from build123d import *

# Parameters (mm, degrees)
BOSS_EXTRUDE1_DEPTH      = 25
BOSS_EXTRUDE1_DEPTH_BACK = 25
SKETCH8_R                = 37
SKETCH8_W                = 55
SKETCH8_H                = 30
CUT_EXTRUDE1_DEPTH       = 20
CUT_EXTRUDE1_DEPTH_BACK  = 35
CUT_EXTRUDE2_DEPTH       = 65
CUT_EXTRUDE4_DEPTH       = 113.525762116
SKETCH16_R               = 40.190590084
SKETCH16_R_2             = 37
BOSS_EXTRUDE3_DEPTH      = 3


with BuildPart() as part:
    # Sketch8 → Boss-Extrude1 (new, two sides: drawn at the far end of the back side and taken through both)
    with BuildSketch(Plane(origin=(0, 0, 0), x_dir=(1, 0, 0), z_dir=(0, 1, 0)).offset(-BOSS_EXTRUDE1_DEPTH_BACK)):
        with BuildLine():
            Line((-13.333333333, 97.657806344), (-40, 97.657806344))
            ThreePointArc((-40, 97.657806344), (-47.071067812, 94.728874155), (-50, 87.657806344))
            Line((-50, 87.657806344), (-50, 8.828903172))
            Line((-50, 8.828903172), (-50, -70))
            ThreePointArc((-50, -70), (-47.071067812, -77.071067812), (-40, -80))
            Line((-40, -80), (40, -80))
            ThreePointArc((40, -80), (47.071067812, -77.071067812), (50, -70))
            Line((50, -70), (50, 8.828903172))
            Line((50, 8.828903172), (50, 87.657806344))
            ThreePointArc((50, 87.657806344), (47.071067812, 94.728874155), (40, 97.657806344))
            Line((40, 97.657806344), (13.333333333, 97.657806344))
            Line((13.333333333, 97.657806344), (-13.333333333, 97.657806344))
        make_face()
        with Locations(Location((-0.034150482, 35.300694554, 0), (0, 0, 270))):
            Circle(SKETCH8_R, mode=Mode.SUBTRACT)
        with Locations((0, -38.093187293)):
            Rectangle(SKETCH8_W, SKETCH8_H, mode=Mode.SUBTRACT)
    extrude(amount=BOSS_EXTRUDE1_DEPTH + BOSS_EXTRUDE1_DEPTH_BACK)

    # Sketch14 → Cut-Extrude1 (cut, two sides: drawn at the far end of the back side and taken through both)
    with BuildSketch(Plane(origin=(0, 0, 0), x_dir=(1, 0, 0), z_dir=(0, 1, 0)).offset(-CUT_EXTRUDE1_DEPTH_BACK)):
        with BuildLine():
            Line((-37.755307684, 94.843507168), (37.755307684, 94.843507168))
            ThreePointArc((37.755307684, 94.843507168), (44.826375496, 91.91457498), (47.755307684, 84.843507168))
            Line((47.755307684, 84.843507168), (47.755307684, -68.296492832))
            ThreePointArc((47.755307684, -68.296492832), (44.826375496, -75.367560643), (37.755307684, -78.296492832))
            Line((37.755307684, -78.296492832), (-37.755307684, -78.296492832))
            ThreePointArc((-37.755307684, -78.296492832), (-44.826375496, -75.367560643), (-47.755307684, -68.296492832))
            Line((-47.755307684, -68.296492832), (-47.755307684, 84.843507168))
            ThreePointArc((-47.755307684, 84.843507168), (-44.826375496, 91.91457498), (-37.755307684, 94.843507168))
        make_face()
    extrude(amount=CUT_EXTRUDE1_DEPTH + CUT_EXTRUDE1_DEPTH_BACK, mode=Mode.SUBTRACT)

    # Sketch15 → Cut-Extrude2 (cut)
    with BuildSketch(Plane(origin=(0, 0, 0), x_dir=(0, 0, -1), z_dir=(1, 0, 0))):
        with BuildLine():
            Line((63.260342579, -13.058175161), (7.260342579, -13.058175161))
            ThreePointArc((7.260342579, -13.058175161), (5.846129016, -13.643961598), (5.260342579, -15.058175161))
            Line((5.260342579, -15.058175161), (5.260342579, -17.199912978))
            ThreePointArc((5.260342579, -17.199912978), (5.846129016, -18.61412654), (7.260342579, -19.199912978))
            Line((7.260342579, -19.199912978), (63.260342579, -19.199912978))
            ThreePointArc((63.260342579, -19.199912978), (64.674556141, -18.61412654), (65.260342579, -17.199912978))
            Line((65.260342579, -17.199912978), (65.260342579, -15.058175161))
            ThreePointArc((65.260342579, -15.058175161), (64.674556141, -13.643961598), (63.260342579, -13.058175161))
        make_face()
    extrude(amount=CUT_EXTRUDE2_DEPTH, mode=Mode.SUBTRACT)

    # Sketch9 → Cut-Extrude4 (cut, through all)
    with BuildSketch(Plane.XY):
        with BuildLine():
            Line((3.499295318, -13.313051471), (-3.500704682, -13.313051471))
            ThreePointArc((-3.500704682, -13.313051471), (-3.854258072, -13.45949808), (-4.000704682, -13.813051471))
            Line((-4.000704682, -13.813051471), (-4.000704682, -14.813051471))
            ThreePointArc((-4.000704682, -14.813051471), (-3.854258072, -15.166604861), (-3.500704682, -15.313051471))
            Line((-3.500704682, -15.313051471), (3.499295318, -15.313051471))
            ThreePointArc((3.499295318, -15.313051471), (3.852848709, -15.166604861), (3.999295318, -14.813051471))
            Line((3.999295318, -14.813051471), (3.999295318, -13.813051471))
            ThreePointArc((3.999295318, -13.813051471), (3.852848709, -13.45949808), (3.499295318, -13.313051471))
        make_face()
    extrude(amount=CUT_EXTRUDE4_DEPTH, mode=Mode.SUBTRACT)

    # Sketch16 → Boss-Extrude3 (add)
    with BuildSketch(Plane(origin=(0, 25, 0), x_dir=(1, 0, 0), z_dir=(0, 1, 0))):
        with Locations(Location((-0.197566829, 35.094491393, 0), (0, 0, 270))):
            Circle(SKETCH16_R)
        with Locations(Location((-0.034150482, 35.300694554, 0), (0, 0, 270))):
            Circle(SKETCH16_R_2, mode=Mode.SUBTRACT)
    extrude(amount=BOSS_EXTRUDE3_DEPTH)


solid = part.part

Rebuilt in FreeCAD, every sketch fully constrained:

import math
import FreeCAD as App
import Part
import Sketcher
from FreeCAD import Vector
Q = App.Units.Quantity

doc = App.newDocument("Part")
params = doc.addObject("Spreadsheet::Sheet", "Params")
for row, (alias, value) in enumerate([
    ("sketch1_diameter", "74 mm"),
    ("sketch1_radius", "10 mm"),
    ("sketch1_width", "80 mm"),
    ("sketch1_width2", "55 mm"),
    ("sketch1_height", "30 mm"),
    ("pad1_length", "25 mm"),
    ("pad1_length2", "25 mm"),
    ("sketch2_radius", "10 mm"),
    ("sketch2_height", "153.14 mm"),
    ("pocket1_length", "20 mm"),
    ("pocket1_length2", "35 mm"),
    ("sketch3_radius", "2 mm"),
    ("sketch3_height", "56 mm"),
    ("pocket2_length", "65 mm"),
    ("sketch4_radius", "0.5 mm"),
    ("sketch4_width", "7 mm"),
    ("sketch4_height", "1 mm"),
    ("sketch5_diameter", "74 mm"),
    ("pad2_length", "3 mm"),
], start=1):
    params.set(f"A{row}", alias)
    params.set(f"B{row}", "=" + value)
    params.setAlias(f"B{row}", alias)

body = doc.addObject("PartDesign::Body", "Body")

sketch1 = body.newObject("Sketcher::SketchObject", "Sketch")
sketch1.AttachmentSupport = (doc.getObject("XZ_Plane"), [""])
sketch1.MapMode = "FlatFace"
sketch1.addGeometry(Part.ArcOfCircle(Part.Circle(Vector(-40, -88, 0), Vector(0, 0, 1), 10), math.radians(-180), math.radians(-90)), False)
sketch1.addGeometry(Part.LineSegment(Vector(-50, -88, 0), Vector(-50, 70, 0)), False)
sketch1.addGeometry(Part.ArcOfCircle(Part.Circle(Vector(-40, 70, 0), Vector(0, 0, 1), 10), math.radians(90), math.radians(180)), False)
sketch1.addGeometry(Part.LineSegment(Vector(-40, 80, 0), Vector(40, 80, 0)), False)
sketch1.addGeometry(Part.ArcOfCircle(Part.Circle(Vector(40, 70, 0), Vector(0, 0, 1), 10), math.radians(0), math.radians(90)), False)
sketch1.addGeometry(Part.LineSegment(Vector(50, 70, 0), Vector(50, -88, 0)), False)
sketch1.addGeometry(Part.ArcOfCircle(Part.Circle(Vector(40, -88, 0), Vector(0, 0, 1), 10), math.radians(-90), math.radians(0)), False)
sketch1.addGeometry(Part.LineSegment(Vector(40, -98, 0), Vector(-40, -98, 0)), False)
sketch1.addGeometry(Part.LineSegment(Vector(28, 53, 0), Vector(-28, 53, 0)), False)
sketch1.addGeometry(Part.LineSegment(Vector(-28, 53, 0), Vector(-28, 23, 0)), False)
sketch1.addGeometry(Part.LineSegment(Vector(-28, 23, 0), Vector(28, 23, 0)), False)
sketch1.addGeometry(Part.LineSegment(Vector(28, 23, 0), Vector(28, 53, 0)), False)
sketch1.addGeometry(Part.Circle(Vector(0, -35, 0), Vector(0, 0, 1), 37), False)
sketch1.addConstraint(Sketcher.Constraint("Tangent", 0, 1, 1, 1))
sketch1.addConstraint(Sketcher.Constraint("Tangent", 1, 2, 2, 2))
sketch1.addConstraint(Sketcher.Constraint("Tangent", 2, 1, 3, 1))
sketch1.addConstraint(Sketcher.Constraint("Tangent", 3, 2, 4, 2))
sketch1.addConstraint(Sketcher.Constraint("Tangent", 4, 1, 5, 1))
sketch1.addConstraint(Sketcher.Constraint("Tangent", 5, 2, 6, 2))
sketch1.addConstraint(Sketcher.Constraint("Tangent", 6, 1, 7, 1))
sketch1.addConstraint(Sketcher.Constraint("Tangent", 7, 2, 0, 2))
sketch1.addConstraint(Sketcher.Constraint("Coincident", 8, 2, 9, 1))
sketch1.addConstraint(Sketcher.Constraint("Coincident", 9, 2, 10, 1))
sketch1.addConstraint(Sketcher.Constraint("Coincident", 10, 2, 11, 1))
sketch1.addConstraint(Sketcher.Constraint("Coincident", 11, 2, 8, 1))
sketch1.addConstraint(Sketcher.Constraint("Vertical", 1))
sketch1.addConstraint(Sketcher.Constraint("Horizontal", 3))
sketch1.addConstraint(Sketcher.Constraint("Vertical", 5))
sketch1.addConstraint(Sketcher.Constraint("Horizontal", 7))
sketch1.addConstraint(Sketcher.Constraint("Horizontal", 8))
sketch1.addConstraint(Sketcher.Constraint("Vertical", 9))
sketch1.addConstraint(Sketcher.Constraint("Horizontal", 10))
sketch1.addConstraint(Sketcher.Constraint("Vertical", 11))
sketch1.addConstraint(Sketcher.Constraint("Equal", 0, 2))
sketch1.addConstraint(Sketcher.Constraint("Equal", 2, 4))
sketch1.addConstraint(Sketcher.Constraint("Equal", 4, 6))
sketch1.addConstraint(Sketcher.Constraint("Diameter", 12, Q("74 mm")))
sketch1.addConstraint(Sketcher.Constraint("Radius", 0, Q("10 mm")))
sketch1.addConstraint(Sketcher.Constraint("DistanceX", 3, 1, 3, 2, Q("80 mm")))
sketch1.addConstraint(Sketcher.Constraint("DistanceX", 8, 2, 8, 1, Q("55 mm")))
sketch1.addConstraint(Sketcher.Constraint("DistanceY", 9, 2, 9, 1, Q("30 mm")))
sketch1.addConstraint(Sketcher.Constraint("DistanceX", 0, 3, -1, 1, Q("40 mm")))
sketch1.addConstraint(Sketcher.Constraint("DistanceY", -1, 1, 2, 3, Q("70 mm")))
sketch1.addConstraint(Sketcher.Constraint("DistanceX", 8, 2, -1, 1, Q("27.5 mm")))
sketch1.addConstraint(Sketcher.Constraint("DistanceY", 1, 1, 1, 2, Q("157.657806 mm")))
sketch1.addConstraint(Sketcher.Constraint("DistanceX", 12, 3, -1, 1, Q("0.03415 mm")))
sketch1.addConstraint(Sketcher.Constraint("DistanceY", 0, 3, 12, 3, Q("52.357112 mm")))
sketch1.addConstraint(Sketcher.Constraint("DistanceY", 12, 3, 9, 2, Q("58.393882 mm")))
sketch1.setExpression("Constraints[23]", "Params.sketch1_diameter")
sketch1.setExpression("Constraints[24]", "Params.sketch1_radius")
sketch1.setExpression("Constraints[25]", "Params.sketch1_width")
sketch1.setExpression("Constraints[26]", "Params.sketch1_width2")
sketch1.setExpression("Constraints[27]", "Params.sketch1_height")
pad1 = body.newObject("PartDesign::Pad", "Pad")
pad1.Profile = sketch1
pad1.Type = "TwoLengths"
pad1.setExpression("Length", "Params.pad1_length")
pad1.setExpression("Length2", "Params.pad1_length2")
pad1.Reversed = True

sketch2 = body.newObject("Sketcher::SketchObject", "Sketch001")
sketch2.AttachmentSupport = (doc.getObject("XZ_Plane"), [""])
sketch2.MapMode = "FlatFace"
sketch2.addGeometry(Part.LineSegment(Vector(38, -95, 0), Vector(-38, -95, 0)), False)
sketch2.addGeometry(Part.ArcOfCircle(Part.Circle(Vector(-38, -85, 0), Vector(0, 0, 1), 10), math.radians(180), math.radians(270)), False)
sketch2.addGeometry(Part.LineSegment(Vector(-48, -85, 0), Vector(-48, 68, 0)), False)
sketch2.addGeometry(Part.ArcOfCircle(Part.Circle(Vector(-38, 68, 0), Vector(0, 0, 1), 10), math.radians(90), math.radians(180)), False)
sketch2.addGeometry(Part.LineSegment(Vector(-38, 78, 0), Vector(38, 78, 0)), False)
sketch2.addGeometry(Part.ArcOfCircle(Part.Circle(Vector(38, 68, 0), Vector(0, 0, 1), 10), math.radians(0), math.radians(90)), False)
sketch2.addGeometry(Part.LineSegment(Vector(48, 68, 0), Vector(48, -85, 0)), False)
sketch2.addGeometry(Part.ArcOfCircle(Part.Circle(Vector(38, -85, 0), Vector(0, 0, 1), 10), math.radians(-90), math.radians(0)), False)
sketch2.addConstraint(Sketcher.Constraint("Tangent", 0, 2, 1, 2))
sketch2.addConstraint(Sketcher.Constraint("Tangent", 1, 1, 2, 1))
sketch2.addConstraint(Sketcher.Constraint("Tangent", 2, 2, 3, 2))
sketch2.addConstraint(Sketcher.Constraint("Tangent", 3, 1, 4, 1))
sketch2.addConstraint(Sketcher.Constraint("Tangent", 4, 2, 5, 2))
sketch2.addConstraint(Sketcher.Constraint("Tangent", 5, 1, 6, 1))
sketch2.addConstraint(Sketcher.Constraint("Tangent", 6, 2, 7, 2))
sketch2.addConstraint(Sketcher.Constraint("Tangent", 7, 1, 0, 1))
sketch2.addConstraint(Sketcher.Constraint("Horizontal", 0))
sketch2.addConstraint(Sketcher.Constraint("Vertical", 2))
sketch2.addConstraint(Sketcher.Constraint("Horizontal", 4))
sketch2.addConstraint(Sketcher.Constraint("Vertical", 6))
sketch2.addConstraint(Sketcher.Constraint("Equal", 1, 3))
sketch2.addConstraint(Sketcher.Constraint("Equal", 3, 5))
sketch2.addConstraint(Sketcher.Constraint("Equal", 5, 7))
sketch2.addConstraint(Sketcher.Constraint("Radius", 1, Q("10 mm")))
sketch2.addConstraint(Sketcher.Constraint("DistanceY", 2, 1, 2, 2, Q("153.14 mm")))
sketch2.addConstraint(Sketcher.Constraint("DistanceX", 0, 2, 0, 1, Q("75.510615 mm")))
sketch2.addConstraint(Sketcher.Constraint("DistanceX", 1, 3, -1, 1, Q("37.755308 mm")))
sketch2.addConstraint(Sketcher.Constraint("DistanceY", 1, 3, -1, 1, Q("84.843507 mm")))
sketch2.setExpression("Constraints[15]", "Params.sketch2_radius")
sketch2.setExpression("Constraints[16]", "Params.sketch2_height")
pocket1 = body.newObject("PartDesign::Pocket", "Pocket")
pocket1.Profile = sketch2
pocket1.Type = "TwoLengths"
pocket1.setExpression("Length", "Params.pocket1_length")
pocket1.setExpression("Length2", "Params.pocket1_length2")

sketch3 = body.newObject("Sketcher::SketchObject", "Sketch002")
sketch3.AttachmentSupport = (doc.getObject("YZ_Plane"), [""])
sketch3.MapMode = "FlatFace"
sketch3.addGeometry(Part.LineSegment(Vector(-13.1, -63.3, 0), Vector(-13.1, -7.3, 0)), False)
sketch3.addGeometry(Part.ArcOfCircle(Part.Circle(Vector(-15.1, -7.3, 0), Vector(0, 0, 1), 2), math.radians(0), math.radians(90)), False)
sketch3.addGeometry(Part.LineSegment(Vector(-15.1, -5.3, 0), Vector(-17.2, -5.3, 0)), False)
sketch3.addGeometry(Part.ArcOfCircle(Part.Circle(Vector(-17.2, -7.3, 0), Vector(0, 0, 1), 2), math.radians(90), math.radians(180)), False)
sketch3.addGeometry(Part.LineSegment(Vector(-19.2, -7.3, 0), Vector(-19.2, -63.3, 0)), False)
sketch3.addGeometry(Part.ArcOfCircle(Part.Circle(Vector(-17.2, -63.3, 0), Vector(0, 0, 1), 2), math.radians(-180), math.radians(-90)), False)
sketch3.addGeometry(Part.LineSegment(Vector(-17.2, -65.3, 0), Vector(-15.1, -65.3, 0)), False)
sketch3.addGeometry(Part.ArcOfCircle(Part.Circle(Vector(-15.1, -63.3, 0), Vector(0, 0, 1), 2), math.radians(-90), math.radians(0)), False)
sketch3.addConstraint(Sketcher.Constraint("Tangent", 0, 2, 1, 1))
sketch3.addConstraint(Sketcher.Constraint("Tangent", 1, 2, 2, 1))
sketch3.addConstraint(Sketcher.Constraint("Tangent", 2, 2, 3, 1))
sketch3.addConstraint(Sketcher.Constraint("Tangent", 3, 2, 4, 1))
sketch3.addConstraint(Sketcher.Constraint("Tangent", 4, 2, 5, 1))
sketch3.addConstraint(Sketcher.Constraint("Tangent", 5, 2, 6, 1))
sketch3.addConstraint(Sketcher.Constraint("Tangent", 6, 2, 7, 1))
sketch3.addConstraint(Sketcher.Constraint("Tangent", 7, 2, 0, 1))
sketch3.addConstraint(Sketcher.Constraint("Vertical", 0))
sketch3.addConstraint(Sketcher.Constraint("Horizontal", 2))
sketch3.addConstraint(Sketcher.Constraint("Vertical", 4))
sketch3.addConstraint(Sketcher.Constraint("Horizontal", 6))
sketch3.addConstraint(Sketcher.Constraint("Equal", 1, 3))
sketch3.addConstraint(Sketcher.Constraint("Equal", 3, 5))
sketch3.addConstraint(Sketcher.Constraint("Equal", 5, 7))
sketch3.addConstraint(Sketcher.Constraint("Radius", 1, Q("2 mm")))
sketch3.addConstraint(Sketcher.Constraint("DistanceY", 0, 1, 0, 2, Q("56 mm")))
sketch3.addConstraint(Sketcher.Constraint("DistanceX", 2, 2, 2, 1, Q("2.141738 mm")))
sketch3.addConstraint(Sketcher.Constraint("DistanceX", 1, 3, -1, 1, Q("15.058175 mm")))
sketch3.addConstraint(Sketcher.Constraint("DistanceY", 1, 3, -1, 1, Q("7.260343 mm")))
sketch3.setExpression("Constraints[15]", "Params.sketch3_radius")
sketch3.setExpression("Constraints[16]", "Params.sketch3_height")
pocket2 = body.newObject("PartDesign::Pocket", "Pocket001")
pocket2.Profile = sketch3
pocket2.setExpression("Length", "Params.pocket2_length")
pocket2.Reversed = True

sketch4 = body.newObject("Sketcher::SketchObject", "Sketch003")
sketch4.AttachmentSupport = (doc.getObject("XY_Plane"), [""])
sketch4.MapMode = "FlatFace"
sketch4.addGeometry(Part.LineSegment(Vector(3.5, -13.31, 0), Vector(-3.5, -13.31, 0)), False)
sketch4.addGeometry(Part.ArcOfCircle(Part.Circle(Vector(-3.5, -13.81, 0), Vector(0, 0, 1), 0.5), math.radians(90), math.radians(180)), False)
sketch4.addGeometry(Part.LineSegment(Vector(-4, -13.81, 0), Vector(-4, -14.81, 0)), False)
sketch4.addGeometry(Part.ArcOfCircle(Part.Circle(Vector(-3.5, -14.81, 0), Vector(0, 0, 1), 0.5), math.radians(-180), math.radians(-90)), False)
sketch4.addGeometry(Part.LineSegment(Vector(-3.5, -15.31, 0), Vector(3.5, -15.31, 0)), False)
sketch4.addGeometry(Part.ArcOfCircle(Part.Circle(Vector(3.5, -14.81, 0), Vector(0, 0, 1), 0.5), math.radians(-90), math.radians(0)), False)
sketch4.addGeometry(Part.LineSegment(Vector(4, -14.81, 0), Vector(4, -13.81, 0)), False)
sketch4.addGeometry(Part.ArcOfCircle(Part.Circle(Vector(3.5, -13.81, 0), Vector(0, 0, 1), 0.5), math.radians(0), math.radians(90)), False)
sketch4.addConstraint(Sketcher.Constraint("Tangent", 0, 2, 1, 1))
sketch4.addConstraint(Sketcher.Constraint("Tangent", 1, 2, 2, 1))
sketch4.addConstraint(Sketcher.Constraint("Tangent", 2, 2, 3, 1))
sketch4.addConstraint(Sketcher.Constraint("Tangent", 3, 2, 4, 1))
sketch4.addConstraint(Sketcher.Constraint("Tangent", 4, 2, 5, 1))
sketch4.addConstraint(Sketcher.Constraint("Tangent", 5, 2, 6, 1))
sketch4.addConstraint(Sketcher.Constraint("Tangent", 6, 2, 7, 1))
sketch4.addConstraint(Sketcher.Constraint("Tangent", 7, 2, 0, 1))
sketch4.addConstraint(Sketcher.Constraint("Horizontal", 0))
sketch4.addConstraint(Sketcher.Constraint("Vertical", 2))
sketch4.addConstraint(Sketcher.Constraint("Horizontal", 4))
sketch4.addConstraint(Sketcher.Constraint("Vertical", 6))
sketch4.addConstraint(Sketcher.Constraint("Equal", 1, 3))
sketch4.addConstraint(Sketcher.Constraint("Equal", 3, 5))
sketch4.addConstraint(Sketcher.Constraint("Equal", 5, 7))
sketch4.addConstraint(Sketcher.Constraint("Radius", 1, Q("0.5 mm")))
sketch4.addConstraint(Sketcher.Constraint("DistanceX", 0, 2, 0, 1, Q("7 mm")))
sketch4.addConstraint(Sketcher.Constraint("DistanceY", 2, 2, 2, 1, Q("1 mm")))
sketch4.addConstraint(Sketcher.Constraint("DistanceY", 1, 3, -1, 1, Q("13.813051 mm")))
sketch4.addConstraint(Sketcher.Constraint("DistanceX", 1, 3, -1, 1, Q("3.500705 mm")))
sketch4.setExpression("Constraints[15]", "Params.sketch4_radius")
sketch4.setExpression("Constraints[16]", "Params.sketch4_width")
sketch4.setExpression("Constraints[17]", "Params.sketch4_height")
pocket3 = body.newObject("PartDesign::Pocket", "Pocket002")
pocket3.Profile = sketch4
pocket3.Type = "ThroughAll"
pocket3.Reversed = True

sketch5 = body.newObject("Sketcher::SketchObject", "Sketch004")
sketch5.AttachmentSupport = (doc.getObject("XZ_Plane"), [""])
sketch5.MapMode = "FlatFace"
sketch5.AttachmentOffset = App.Placement(Vector(0, 0, -25), App.Rotation())
sketch5.addGeometry(Part.Circle(Vector(0, -35, 0), Vector(0, 0, 1), 40), False)
sketch5.addGeometry(Part.Circle(Vector(0, -35, 0), Vector(0, 0, 1), 37), False)
sketch5.addConstraint(Sketcher.Constraint("Diameter", 1, Q("74 mm")))
sketch5.addConstraint(Sketcher.Constraint("Diameter", 0, Q("80.38118 mm")))
sketch5.addConstraint(Sketcher.Constraint("DistanceY", 0, 3, -1, 1, Q("35.094491 mm")))
sketch5.addConstraint(Sketcher.Constraint("DistanceX", 1, 3, -1, 1, Q("0.03415 mm")))
sketch5.addConstraint(Sketcher.Constraint("DistanceX", 0, 3, -1, 1, Q("0.197567 mm")))
sketch5.addConstraint(Sketcher.Constraint("DistanceY", 1, 3, -1, 1, Q("35.300695 mm")))
sketch5.setExpression("Constraints[0]", "Params.sketch5_diameter")
pad2 = body.newObject("PartDesign::Pad", "Pad001")
pad2.Profile = sketch5
pad2.setExpression("Length", "Params.pad2_length")
pad2.Reversed = True

doc.recompute()
